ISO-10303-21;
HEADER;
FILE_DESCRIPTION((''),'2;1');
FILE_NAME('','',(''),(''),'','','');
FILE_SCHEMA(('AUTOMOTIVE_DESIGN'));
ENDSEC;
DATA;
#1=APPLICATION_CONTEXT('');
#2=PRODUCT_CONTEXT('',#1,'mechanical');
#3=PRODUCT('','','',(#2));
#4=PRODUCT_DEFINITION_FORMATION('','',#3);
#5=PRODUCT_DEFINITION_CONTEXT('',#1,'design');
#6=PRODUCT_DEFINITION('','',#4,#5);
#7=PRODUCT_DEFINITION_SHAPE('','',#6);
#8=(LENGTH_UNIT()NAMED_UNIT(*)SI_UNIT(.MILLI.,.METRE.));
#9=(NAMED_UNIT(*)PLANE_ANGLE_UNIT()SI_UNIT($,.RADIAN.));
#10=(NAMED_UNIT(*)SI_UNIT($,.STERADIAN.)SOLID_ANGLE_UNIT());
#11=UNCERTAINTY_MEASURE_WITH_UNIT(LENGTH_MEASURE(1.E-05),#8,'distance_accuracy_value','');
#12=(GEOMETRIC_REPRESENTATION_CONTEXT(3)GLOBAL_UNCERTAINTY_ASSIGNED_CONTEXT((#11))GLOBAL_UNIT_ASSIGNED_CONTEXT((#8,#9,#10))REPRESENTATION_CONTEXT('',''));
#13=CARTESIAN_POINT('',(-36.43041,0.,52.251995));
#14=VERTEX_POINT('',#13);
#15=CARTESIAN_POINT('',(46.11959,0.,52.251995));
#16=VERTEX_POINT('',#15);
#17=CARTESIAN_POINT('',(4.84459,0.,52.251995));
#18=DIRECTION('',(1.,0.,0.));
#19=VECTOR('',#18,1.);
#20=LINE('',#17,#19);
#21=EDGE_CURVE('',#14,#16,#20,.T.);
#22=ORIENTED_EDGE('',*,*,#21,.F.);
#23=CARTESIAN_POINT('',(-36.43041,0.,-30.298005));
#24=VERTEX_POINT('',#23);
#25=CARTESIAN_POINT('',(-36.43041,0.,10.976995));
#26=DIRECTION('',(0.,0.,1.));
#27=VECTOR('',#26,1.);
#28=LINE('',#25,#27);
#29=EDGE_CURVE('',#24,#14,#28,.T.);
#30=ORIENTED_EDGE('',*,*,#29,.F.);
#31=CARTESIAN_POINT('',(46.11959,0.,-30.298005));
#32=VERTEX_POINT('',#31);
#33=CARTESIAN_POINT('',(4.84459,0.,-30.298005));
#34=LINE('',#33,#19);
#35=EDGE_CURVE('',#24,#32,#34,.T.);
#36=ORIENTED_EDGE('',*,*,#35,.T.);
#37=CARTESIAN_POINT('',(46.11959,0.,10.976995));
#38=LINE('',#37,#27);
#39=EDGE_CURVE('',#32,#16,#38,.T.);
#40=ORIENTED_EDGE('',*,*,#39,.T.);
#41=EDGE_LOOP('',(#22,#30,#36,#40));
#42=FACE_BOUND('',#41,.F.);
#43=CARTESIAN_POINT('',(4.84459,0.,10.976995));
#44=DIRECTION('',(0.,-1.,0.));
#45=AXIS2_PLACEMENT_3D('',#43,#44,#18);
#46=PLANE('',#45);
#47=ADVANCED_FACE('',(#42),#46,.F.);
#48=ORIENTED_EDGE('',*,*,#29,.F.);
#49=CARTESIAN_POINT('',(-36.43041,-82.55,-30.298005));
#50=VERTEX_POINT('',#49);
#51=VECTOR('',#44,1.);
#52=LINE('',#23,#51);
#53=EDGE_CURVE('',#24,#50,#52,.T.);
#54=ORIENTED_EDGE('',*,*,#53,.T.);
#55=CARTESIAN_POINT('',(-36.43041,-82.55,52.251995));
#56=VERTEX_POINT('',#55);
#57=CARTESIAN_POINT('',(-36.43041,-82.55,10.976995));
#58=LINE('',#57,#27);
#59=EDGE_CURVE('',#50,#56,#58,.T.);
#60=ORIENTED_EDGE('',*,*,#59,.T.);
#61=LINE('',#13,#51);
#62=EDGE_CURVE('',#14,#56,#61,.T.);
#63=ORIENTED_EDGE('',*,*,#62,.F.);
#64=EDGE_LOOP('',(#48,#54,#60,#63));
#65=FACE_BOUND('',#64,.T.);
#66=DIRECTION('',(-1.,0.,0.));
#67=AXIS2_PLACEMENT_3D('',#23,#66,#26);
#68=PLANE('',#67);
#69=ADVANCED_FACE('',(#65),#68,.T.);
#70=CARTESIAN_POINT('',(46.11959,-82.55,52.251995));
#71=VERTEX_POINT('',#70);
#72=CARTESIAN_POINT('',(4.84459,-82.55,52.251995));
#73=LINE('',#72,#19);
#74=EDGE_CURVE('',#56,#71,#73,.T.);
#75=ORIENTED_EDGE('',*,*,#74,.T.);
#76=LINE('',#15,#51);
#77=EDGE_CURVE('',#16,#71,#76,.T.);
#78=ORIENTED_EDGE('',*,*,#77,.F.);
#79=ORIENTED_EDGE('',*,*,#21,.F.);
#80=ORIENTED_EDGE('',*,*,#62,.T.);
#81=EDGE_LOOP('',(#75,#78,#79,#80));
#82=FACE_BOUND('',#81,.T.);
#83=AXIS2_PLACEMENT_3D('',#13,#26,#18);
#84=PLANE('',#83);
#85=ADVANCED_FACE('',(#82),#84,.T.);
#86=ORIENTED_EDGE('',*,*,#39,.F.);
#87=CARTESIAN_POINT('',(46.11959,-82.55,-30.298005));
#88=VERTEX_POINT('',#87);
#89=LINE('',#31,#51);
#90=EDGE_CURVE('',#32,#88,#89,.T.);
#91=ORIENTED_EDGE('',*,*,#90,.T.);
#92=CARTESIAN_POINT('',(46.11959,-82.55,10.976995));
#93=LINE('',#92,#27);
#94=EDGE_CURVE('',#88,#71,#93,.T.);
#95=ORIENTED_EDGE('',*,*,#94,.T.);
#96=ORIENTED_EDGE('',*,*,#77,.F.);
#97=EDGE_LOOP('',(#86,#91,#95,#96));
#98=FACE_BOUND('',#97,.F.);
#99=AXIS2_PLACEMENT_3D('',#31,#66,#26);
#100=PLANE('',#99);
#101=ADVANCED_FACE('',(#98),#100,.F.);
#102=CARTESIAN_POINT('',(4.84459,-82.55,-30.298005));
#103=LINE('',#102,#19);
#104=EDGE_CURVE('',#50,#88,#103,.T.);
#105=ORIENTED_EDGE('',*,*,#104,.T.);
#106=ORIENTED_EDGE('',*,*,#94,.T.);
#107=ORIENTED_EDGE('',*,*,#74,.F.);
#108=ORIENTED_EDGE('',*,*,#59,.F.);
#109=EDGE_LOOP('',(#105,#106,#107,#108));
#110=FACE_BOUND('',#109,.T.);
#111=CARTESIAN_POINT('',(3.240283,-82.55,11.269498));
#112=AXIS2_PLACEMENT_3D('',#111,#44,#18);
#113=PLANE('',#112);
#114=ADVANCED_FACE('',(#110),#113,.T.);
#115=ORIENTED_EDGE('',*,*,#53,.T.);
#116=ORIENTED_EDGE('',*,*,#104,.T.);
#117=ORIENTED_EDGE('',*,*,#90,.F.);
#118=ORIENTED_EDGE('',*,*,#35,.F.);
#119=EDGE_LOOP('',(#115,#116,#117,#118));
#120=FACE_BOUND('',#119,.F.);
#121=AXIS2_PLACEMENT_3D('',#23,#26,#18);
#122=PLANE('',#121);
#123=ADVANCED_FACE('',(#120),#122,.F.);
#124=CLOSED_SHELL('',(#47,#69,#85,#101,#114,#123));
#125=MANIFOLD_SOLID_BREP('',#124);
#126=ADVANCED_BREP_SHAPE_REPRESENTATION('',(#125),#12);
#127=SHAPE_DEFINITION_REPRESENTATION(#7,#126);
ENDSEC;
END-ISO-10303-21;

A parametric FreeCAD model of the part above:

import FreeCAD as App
import Part
import Sketcher

V = App.Vector
Q = App.Units.Quantity


def add_polygon(sketch, points):
    """Adds a closed chain of lines whose ends are joined by coincident constraints."""
    first, n = sketch.GeometryCount, len(points)
    for a, b in zip(points, points[1:] + points[:1]):
        sketch.addGeometry(Part.LineSegment(App.Vector(*a, 0), App.Vector(*b, 0)), False)
    for i in range(n):
        sketch.addConstraint(Sketcher.Constraint("Coincident", first + i, 2, first + (i + 1) % n, 1))

doc = App.newDocument("Part")
body = doc.addObject("PartDesign::Body", "Body")

sketch1 = doc.addObject("Sketcher::SketchObject", "Sketch")
body.addObject(sketch1)
sketch1.AttachmentSupport = (doc.XZ_Plane, [""])
sketch1.MapMode = "FlatFace"
add_polygon(sketch1, [(-36.43041, 52.251995), (-36.43041, -30.298005), (46.11959, -30.298005), (46.11959, 52.251995)])
sketch1.addConstraint(Sketcher.Constraint("Vertical", 0))
sketch1.addConstraint(Sketcher.Constraint("Horizontal", 1))
sketch1.addConstraint(Sketcher.Constraint("Vertical", 2))
sketch1.addConstraint(Sketcher.Constraint("Horizontal", 3))
sketch1.addConstraint(Sketcher.Constraint("Equal", 3, 0))
sketch1.addConstraint(Sketcher.Constraint("DistanceX", 1, 1, 1, 2, Q("3.25 in")))
sketch1.addConstraint(Sketcher.Constraint("DistanceX", 0, 2, -1, 1, 36.43041))
sketch1.addConstraint(Sketcher.Constraint("DistanceY", 0, 2, -1, 1, 30.298005))
pad1 = doc.addObject("PartDesign::Pad", "Pad")
body.addObject(pad1)
pad1.Profile = sketch1
pad1.Length = Q("3.25 in")

sketch2 = doc.addObject("Sketcher::SketchObject", "Sketch001")
body.addObject(sketch2)
sketch2.AttachmentSupport = (doc.XZ_Plane, [""])
sketch2.MapMode = "FlatFace"
sketch2.AttachmentOffset = App.Placement(V(0, 0, 3.25 * 25.4), App.Rotation())
sketch2.addGeometry(Part.Circle(V(3.240283, 11.269498, 0), V(0, 0, 1), 19.086934), False)
sketch2.addConstraint(Sketcher.Constraint("Diameter", 0, 38.173868))
sketch2.addConstraint(Sketcher.Constraint("DistanceX", -1, 1, 0, 3, 3.240283))
sketch2.addConstraint(Sketcher.Constraint("DistanceY", -1, 1, 0, 3, 11.269498))
pocket1 = doc.addObject("PartDesign::Pocket", "Pocket")
body.addObject(pocket1)
pocket1.Profile = sketch2
pocket1.Length = Q("1 in")

sketch3 = doc.addObject("Sketcher::SketchObject", "Sketch002")
body.addObject(sketch3)
sketch3.AttachmentSupport = (doc.XZ_Plane, [""])
sketch3.MapMode = "FlatFace"
sketch3.AttachmentOffset = App.Placement(V(0, 0, 2.25 * 25.4), App.Rotation())
sketch3.addGeometry(Part.Circle(V(3.240283, 11.269498, 0), V(0, 0, 1), 19.086934), False)
sketch3.addConstraint(Sketcher.Constraint("Diameter", 0, 38.173868))
sketch3.addConstraint(Sketcher.Constraint("DistanceX", -1, 1, 0, 3, 3.240283))
sketch3.addConstraint(Sketcher.Constraint("DistanceY", -1, 1, 0, 3, 11.269498))
pad2 = doc.addObject("PartDesign::Pad", "Pad001")
body.addObject(pad2)
pad2.Profile = sketch3
pad2.Length = Q("1 in")

doc.recompute()
